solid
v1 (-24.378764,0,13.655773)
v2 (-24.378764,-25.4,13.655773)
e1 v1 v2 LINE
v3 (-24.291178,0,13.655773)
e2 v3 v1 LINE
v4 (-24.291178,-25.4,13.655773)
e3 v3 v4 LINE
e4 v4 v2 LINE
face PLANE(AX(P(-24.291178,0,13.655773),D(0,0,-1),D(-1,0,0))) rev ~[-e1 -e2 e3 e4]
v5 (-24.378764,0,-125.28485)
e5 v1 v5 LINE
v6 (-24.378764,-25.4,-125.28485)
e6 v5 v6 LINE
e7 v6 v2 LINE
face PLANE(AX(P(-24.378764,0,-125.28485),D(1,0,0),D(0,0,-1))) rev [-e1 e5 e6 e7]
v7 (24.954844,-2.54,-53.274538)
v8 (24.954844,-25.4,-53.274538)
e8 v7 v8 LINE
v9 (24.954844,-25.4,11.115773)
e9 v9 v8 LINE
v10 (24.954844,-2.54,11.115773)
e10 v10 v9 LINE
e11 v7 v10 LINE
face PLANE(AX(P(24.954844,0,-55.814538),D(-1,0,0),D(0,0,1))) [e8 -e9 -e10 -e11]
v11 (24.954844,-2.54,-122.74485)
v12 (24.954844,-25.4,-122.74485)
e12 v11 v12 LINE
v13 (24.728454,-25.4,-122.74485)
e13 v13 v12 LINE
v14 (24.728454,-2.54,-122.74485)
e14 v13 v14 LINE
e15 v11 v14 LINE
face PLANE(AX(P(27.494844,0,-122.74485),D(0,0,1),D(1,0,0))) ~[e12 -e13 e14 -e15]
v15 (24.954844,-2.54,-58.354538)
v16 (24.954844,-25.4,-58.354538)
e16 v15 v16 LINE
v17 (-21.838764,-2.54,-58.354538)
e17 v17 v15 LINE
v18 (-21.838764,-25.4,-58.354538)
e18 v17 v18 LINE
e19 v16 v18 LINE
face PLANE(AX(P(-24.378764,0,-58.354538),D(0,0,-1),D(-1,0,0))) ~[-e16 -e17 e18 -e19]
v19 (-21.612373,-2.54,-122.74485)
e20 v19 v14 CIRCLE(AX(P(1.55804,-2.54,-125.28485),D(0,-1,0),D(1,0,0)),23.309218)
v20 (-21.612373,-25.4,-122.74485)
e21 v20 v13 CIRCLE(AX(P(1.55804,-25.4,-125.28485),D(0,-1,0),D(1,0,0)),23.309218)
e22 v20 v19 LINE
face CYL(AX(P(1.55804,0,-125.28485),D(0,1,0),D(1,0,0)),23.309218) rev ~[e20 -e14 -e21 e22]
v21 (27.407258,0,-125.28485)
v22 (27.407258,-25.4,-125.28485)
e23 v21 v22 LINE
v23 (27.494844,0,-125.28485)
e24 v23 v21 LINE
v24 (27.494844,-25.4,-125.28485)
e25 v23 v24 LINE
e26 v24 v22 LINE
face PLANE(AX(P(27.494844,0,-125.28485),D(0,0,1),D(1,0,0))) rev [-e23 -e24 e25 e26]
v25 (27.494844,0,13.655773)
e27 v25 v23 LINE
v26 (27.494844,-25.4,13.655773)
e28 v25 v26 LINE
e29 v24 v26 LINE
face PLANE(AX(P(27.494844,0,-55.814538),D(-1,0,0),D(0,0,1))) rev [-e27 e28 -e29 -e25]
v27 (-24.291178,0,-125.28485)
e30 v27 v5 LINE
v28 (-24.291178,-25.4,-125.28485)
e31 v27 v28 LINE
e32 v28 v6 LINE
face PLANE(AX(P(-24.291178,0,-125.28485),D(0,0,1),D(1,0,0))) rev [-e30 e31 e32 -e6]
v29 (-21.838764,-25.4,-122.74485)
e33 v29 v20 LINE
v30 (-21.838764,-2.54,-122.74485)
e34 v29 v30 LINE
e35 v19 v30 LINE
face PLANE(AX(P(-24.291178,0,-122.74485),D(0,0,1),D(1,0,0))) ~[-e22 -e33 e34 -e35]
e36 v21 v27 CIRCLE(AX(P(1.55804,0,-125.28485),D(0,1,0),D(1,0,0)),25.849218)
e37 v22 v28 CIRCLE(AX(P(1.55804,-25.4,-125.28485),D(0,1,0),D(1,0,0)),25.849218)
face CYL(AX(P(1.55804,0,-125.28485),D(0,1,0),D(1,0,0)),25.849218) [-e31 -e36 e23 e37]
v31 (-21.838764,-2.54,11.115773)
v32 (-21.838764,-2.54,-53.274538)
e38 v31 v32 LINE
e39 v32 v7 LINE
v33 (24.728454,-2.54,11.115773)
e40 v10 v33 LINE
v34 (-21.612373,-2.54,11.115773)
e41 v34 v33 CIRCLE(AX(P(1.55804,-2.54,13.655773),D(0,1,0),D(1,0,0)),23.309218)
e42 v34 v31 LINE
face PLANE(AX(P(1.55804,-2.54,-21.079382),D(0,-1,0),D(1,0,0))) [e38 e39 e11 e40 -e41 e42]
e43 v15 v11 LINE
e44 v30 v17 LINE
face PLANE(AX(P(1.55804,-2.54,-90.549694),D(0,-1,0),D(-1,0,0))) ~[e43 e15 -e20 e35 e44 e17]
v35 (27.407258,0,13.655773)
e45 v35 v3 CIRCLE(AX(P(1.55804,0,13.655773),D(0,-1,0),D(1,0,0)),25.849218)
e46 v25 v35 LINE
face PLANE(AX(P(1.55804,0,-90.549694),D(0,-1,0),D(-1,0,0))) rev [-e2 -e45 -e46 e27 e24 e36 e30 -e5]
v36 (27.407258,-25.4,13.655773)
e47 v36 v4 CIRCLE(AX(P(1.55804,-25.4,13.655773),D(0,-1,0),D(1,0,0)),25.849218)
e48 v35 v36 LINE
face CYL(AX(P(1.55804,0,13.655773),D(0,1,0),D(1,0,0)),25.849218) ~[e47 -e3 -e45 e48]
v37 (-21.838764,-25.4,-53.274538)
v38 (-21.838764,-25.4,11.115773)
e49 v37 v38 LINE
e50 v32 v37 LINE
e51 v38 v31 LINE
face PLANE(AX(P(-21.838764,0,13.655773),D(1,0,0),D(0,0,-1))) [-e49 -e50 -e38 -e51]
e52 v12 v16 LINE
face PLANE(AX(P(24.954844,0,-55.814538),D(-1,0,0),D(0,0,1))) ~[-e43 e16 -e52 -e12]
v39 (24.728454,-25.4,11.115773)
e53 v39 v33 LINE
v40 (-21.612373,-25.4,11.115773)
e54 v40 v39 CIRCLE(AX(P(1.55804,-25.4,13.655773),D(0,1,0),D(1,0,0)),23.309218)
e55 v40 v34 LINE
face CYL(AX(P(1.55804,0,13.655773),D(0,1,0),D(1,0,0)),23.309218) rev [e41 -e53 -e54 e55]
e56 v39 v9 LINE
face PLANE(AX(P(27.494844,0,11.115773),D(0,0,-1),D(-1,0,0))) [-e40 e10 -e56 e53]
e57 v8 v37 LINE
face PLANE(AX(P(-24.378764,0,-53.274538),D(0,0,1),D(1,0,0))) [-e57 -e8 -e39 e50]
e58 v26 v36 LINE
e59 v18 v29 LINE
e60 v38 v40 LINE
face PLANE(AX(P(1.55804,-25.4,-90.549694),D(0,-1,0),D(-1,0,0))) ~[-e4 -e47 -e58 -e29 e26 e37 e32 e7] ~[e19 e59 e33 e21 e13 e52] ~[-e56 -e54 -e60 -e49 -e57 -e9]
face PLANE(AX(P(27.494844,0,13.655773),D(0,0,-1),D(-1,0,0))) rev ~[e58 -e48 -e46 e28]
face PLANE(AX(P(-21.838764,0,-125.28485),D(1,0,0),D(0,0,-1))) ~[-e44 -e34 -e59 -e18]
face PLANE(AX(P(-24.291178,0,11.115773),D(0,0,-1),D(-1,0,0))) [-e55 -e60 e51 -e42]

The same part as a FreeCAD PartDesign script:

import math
import FreeCAD as App
import Part
import Sketcher
from FreeCAD import Vector
Q = App.Units.Quantity


def faces_at(feature, points):
    """Names of the faces that lie closest to the given points."""
    faces = feature.Shape.Faces
    near = lambda p: min(range(len(faces)), key=lambda i: faces[i].distToShape(Part.Vertex(*p))[0])
    return sorted({f"Face{near(p) + 1}" for p in points})

doc = App.newDocument("Part")
body = doc.addObject("PartDesign::Body", "Body")

# Sketch on XZ plane
sketch1 = body.newObject("Sketcher::SketchObject", "Sketch")
sketch1.AttachmentSupport = (doc.getObject("XZ_Plane"), [""])
sketch1.MapMode = "FlatFace"
sketch1.addGeometry([
    Part.LineSegment(Vector(-24.38, 13.66, 0), Vector(-24.38, -55.81, 0)),  # 0
    Part.LineSegment(Vector(-24.38, -55.81, 0), Vector(27.49, -55.81, 0)),  # 1
    Part.LineSegment(Vector(27.49, -55.81, 0), Vector(27.49, 13.66, 0)),  # 2
    Part.LineSegment(Vector(27.49, 13.66, 0), Vector(27.41, 13.66, 0)),  # 3
    Part.ArcOfCircle(Part.Circle(Vector(1.56, 13.66, 0), Vector(0, 0, 1), 25.85), math.radians(0), math.radians(180)),  # 4
    Part.LineSegment(Vector(-24.29, 13.66, 0), Vector(-24.38, 13.66, 0)),  # 5
], False)
sketch1.addConstraint([
    Sketcher.Constraint("Coincident", 0, 2, 1, 1),
    Sketcher.Constraint("Coincident", 1, 2, 2, 1),
    Sketcher.Constraint("Coincident", 2, 2, 3, 1),
    Sketcher.Constraint("Coincident", 3, 2, 4, 1),
    Sketcher.Constraint("Coincident", 4, 2, 5, 1),
    Sketcher.Constraint("Coincident", 5, 2, 0, 1),
    Sketcher.Constraint("Vertical", 0),
    Sketcher.Constraint("Horizontal", 1),
    Sketcher.Constraint("Vertical", 2),
    Sketcher.Constraint("Horizontal", 3),
    Sketcher.Constraint("Horizontal", 5),
    Sketcher.Constraint("Horizontal", 4, 3, 2, 2),
    Sketcher.Constraint("Horizontal", 3, 2, 4, 2),
    Sketcher.Constraint("Equal", 3, 5),
    Sketcher.Constraint("Radius", 4, 25.849218),
    Sketcher.Constraint("DistanceY", 0, 2, 0, 1, 69.470312),
    Sketcher.Constraint("DistanceX", 1, 1, 1, 2, 51.873608),
    Sketcher.Constraint("DistanceX", -1, 1, 4, 3, 1.55804),
    Sketcher.Constraint("DistanceY", 0, 2, -1, 1, 55.814538),
])
pad1 = body.newObject("PartDesign::Pad", "Pad")
pad1.Profile = sketch1
pad1.Length = Q("1 in")
doc.recompute()

thickness = body.newObject("PartDesign::Thickness", "Thickness")
thickness.Base = (pad1, faces_at(pad1, [(1.558, -25.4, -8.155)]))
thickness.Value = Q("0.1 in")
thickness.Reversed = True
thickness.Join = "Intersection"
body2 = doc.addObject("PartDesign::Body", "Body001")
doc.recompute()

body2.BaseFeature = body
doc.recompute()

mirroring = doc.addObject("Part::Mirroring", "Mirroring")
mirroring.Source = body
mirroring.Base = Vector(1.55804, -12.7, -55.814538)
mirroring.Normal = Vector(0, 0, -1)
body3 = doc.addObject("PartDesign::Body", "Body002")
body3.BaseFeature = mirroring
boolean = body2.newObject("PartDesign::Boolean", "Boolean")
boolean.Type = "Fuse"
boolean.addObjects([body3])
doc.recompute()
mirroring.Visibility = False

doc.recompute()
